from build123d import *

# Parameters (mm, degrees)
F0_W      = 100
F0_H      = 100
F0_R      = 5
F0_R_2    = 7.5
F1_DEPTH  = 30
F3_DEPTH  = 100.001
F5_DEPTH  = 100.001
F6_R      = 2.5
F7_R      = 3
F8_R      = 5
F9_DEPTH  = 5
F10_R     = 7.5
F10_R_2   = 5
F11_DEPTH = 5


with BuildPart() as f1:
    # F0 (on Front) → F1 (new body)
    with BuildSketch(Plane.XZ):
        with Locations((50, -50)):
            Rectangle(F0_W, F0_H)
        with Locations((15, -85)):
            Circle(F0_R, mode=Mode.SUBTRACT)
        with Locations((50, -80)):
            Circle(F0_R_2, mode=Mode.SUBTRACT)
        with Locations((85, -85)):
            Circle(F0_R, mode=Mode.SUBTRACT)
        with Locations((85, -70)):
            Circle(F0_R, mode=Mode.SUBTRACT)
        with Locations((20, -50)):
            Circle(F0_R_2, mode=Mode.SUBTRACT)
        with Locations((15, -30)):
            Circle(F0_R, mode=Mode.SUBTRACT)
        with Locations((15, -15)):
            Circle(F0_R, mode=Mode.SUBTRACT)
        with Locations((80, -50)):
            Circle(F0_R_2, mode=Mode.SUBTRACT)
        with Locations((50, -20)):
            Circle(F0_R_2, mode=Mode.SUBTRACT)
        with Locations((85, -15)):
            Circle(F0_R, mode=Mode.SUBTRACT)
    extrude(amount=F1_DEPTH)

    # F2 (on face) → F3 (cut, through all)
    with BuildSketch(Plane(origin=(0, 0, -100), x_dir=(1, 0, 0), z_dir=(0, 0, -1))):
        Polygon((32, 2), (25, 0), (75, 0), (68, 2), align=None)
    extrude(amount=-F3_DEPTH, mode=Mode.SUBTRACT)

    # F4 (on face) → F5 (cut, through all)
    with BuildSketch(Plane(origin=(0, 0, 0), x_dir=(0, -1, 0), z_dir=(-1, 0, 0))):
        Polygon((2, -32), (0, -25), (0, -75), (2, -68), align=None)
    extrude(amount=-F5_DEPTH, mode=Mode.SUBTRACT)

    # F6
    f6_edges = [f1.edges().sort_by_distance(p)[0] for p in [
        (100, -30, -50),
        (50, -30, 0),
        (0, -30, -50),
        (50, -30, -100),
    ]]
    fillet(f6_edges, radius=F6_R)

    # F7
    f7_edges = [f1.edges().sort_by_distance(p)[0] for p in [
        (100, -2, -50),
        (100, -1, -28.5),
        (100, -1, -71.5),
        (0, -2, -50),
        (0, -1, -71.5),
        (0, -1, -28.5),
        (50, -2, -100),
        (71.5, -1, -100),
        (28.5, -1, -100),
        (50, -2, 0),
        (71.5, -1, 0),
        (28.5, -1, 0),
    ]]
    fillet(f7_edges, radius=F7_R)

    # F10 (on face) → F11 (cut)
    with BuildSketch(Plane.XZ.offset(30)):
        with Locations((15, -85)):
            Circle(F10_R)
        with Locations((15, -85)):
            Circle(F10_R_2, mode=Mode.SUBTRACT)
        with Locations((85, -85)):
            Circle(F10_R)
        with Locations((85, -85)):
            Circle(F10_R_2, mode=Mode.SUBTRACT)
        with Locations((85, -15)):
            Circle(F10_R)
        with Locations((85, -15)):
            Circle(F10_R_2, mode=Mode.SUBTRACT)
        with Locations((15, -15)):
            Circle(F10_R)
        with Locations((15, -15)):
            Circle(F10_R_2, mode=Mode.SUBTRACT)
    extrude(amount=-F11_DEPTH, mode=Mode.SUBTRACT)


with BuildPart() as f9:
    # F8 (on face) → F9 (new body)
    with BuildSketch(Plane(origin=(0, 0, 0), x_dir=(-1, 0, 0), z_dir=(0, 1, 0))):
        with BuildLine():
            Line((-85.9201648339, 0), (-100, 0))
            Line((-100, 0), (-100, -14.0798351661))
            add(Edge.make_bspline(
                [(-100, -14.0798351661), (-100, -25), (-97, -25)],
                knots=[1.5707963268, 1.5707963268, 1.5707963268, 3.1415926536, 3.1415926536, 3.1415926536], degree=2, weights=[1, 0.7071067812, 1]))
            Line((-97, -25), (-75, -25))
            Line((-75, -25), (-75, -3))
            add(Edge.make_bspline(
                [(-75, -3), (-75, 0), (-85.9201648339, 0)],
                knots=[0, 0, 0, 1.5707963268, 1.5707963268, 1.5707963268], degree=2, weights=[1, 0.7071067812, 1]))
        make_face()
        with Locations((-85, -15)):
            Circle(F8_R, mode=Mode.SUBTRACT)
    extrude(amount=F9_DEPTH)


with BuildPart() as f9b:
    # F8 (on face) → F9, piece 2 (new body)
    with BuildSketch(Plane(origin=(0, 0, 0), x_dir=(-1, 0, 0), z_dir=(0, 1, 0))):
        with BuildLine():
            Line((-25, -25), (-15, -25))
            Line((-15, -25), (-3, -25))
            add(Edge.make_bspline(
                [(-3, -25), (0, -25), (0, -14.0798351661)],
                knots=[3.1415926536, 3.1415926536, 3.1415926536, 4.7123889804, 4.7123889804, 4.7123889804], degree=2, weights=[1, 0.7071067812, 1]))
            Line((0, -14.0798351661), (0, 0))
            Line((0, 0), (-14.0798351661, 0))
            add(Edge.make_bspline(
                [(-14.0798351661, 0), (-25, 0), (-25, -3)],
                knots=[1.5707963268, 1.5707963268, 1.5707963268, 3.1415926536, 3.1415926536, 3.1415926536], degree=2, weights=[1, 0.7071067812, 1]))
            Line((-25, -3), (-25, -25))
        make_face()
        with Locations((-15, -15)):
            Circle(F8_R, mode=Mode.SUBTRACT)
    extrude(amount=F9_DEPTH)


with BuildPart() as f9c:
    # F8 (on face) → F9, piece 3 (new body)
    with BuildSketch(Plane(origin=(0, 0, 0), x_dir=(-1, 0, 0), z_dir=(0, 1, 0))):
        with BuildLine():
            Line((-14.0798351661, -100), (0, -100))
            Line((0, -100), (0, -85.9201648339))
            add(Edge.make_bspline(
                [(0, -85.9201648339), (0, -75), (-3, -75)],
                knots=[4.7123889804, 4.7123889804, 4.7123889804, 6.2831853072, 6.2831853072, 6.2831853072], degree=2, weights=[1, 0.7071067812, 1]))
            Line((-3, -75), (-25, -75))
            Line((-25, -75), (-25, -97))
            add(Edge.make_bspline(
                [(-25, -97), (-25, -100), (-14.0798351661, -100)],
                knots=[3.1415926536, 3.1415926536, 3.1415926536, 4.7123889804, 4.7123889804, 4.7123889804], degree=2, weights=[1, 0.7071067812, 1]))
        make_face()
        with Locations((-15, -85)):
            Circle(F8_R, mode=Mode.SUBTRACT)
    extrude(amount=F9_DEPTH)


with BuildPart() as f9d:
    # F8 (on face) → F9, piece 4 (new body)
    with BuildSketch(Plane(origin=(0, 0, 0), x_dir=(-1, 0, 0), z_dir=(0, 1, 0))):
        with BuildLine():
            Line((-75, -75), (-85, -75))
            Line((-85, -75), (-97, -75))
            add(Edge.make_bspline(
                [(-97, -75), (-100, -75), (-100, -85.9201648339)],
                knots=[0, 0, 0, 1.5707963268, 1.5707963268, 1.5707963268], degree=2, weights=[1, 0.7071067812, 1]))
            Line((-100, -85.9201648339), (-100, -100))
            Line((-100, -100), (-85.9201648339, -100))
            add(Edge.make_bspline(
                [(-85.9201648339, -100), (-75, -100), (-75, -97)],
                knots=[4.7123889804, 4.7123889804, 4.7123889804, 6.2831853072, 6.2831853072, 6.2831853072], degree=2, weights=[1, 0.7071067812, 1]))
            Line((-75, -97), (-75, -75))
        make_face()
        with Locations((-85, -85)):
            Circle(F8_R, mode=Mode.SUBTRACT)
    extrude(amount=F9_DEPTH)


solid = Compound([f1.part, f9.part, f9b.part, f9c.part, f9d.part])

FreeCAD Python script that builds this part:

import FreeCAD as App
import Part
import Sketcher


def edges_at(feature, points):
    """Names of the edges that pass closest to the given points."""
    edges = feature.Shape.Edges
    near = lambda p: min(range(len(edges)), key=lambda i: edges[i].distToShape(Part.Vertex(*p))[0])
    return sorted({f"Edge{near(p) + 1}" for p in points})

doc = App.newDocument("Part")
body = doc.addObject("PartDesign::Body", "Body")

# Sketch on XZ plane
sketch1 = body.newObject("Sketcher::SketchObject", "Sketch")
sketch1.AttachmentSupport = (doc.getObject("XZ_Plane"), [""])
sketch1.MapMode = "FlatFace"
sketch1.addGeometry([
    Part.LineSegment(App.Vector(0, 0, 0), App.Vector(0, -100, 0)),  # 0
    Part.LineSegment(App.Vector(0, -100, 0), App.Vector(100, -100, 0)),  # 1
    Part.LineSegment(App.Vector(100, -100, 0), App.Vector(100, 0, 0)),  # 2
    Part.LineSegment(App.Vector(100, 0, 0), App.Vector(0, 0, 0)),  # 3
    Part.Circle(App.Vector(15, -85, 0), App.Vector(0, 0, 1), 5),  # 4
    Part.Circle(App.Vector(50, -80, 0), App.Vector(0, 0, 1), 7.5),  # 5
    Part.Circle(App.Vector(85, -85, 0), App.Vector(0, 0, 1), 5),  # 6
    Part.Circle(App.Vector(85, -70, 0), App.Vector(0, 0, 1), 5),  # 7
    Part.Circle(App.Vector(20, -50, 0), App.Vector(0, 0, 1), 7.5),  # 8
    Part.Circle(App.Vector(15, -30, 0), App.Vector(0, 0, 1), 5),  # 9
    Part.Circle(App.Vector(15, -15, 0), App.Vector(0, 0, 1), 5),  # 10
    Part.Circle(App.Vector(80, -50, 0), App.Vector(0, 0, 1), 7.5),  # 11
    Part.Circle(App.Vector(50, -20, 0), App.Vector(0, 0, 1), 7.5),  # 12
    Part.Circle(App.Vector(85, -15, 0), App.Vector(0, 0, 1), 5),  # 13
], False)
sketch1.addConstraint([
    Sketcher.Constraint("Coincident", 0, 2, 1, 1),
    Sketcher.Constraint("Coincident", 1, 2, 2, 1),
    Sketcher.Constraint("Coincident", 2, 2, 3, 1),
    Sketcher.Constraint("Coincident", 3, 2, 0, 1),
    Sketcher.Constraint("Vertical", 0),
    Sketcher.Constraint("Horizontal", 1),
    Sketcher.Constraint("Vertical", 2),
    Sketcher.Constraint("Horizontal", 3),
    Sketcher.Constraint("Coincident", 3, 2, -1, 1),
    Sketcher.Constraint("Equal", 4, 6),
    Sketcher.Constraint("Equal", 6, 7),
    Sketcher.Constraint("Equal", 5, 8),
    Sketcher.Constraint("Equal", 7, 9),
    Sketcher.Constraint("Equal", 9, 10),
    Sketcher.Constraint("Equal", 8, 11),
    Sketcher.Constraint("Equal", 11, 12),
    Sketcher.Constraint("Equal", 10, 13),
    Sketcher.Constraint("Horizontal", 4, 3, 6, 3),
    Sketcher.Constraint("Horizontal", 8, 3, 11, 3),
    Sketcher.Constraint("Horizontal", 10, 3, 13, 3),
    Sketcher.Constraint("Vertical", 6, 3, 7, 3),
    Sketcher.Constraint("Vertical", 4, 3, 9, 3),
    Sketcher.Constraint("Vertical", 9, 3, 10, 3),
    Sketcher.Constraint("Vertical", 5, 3, 12, 3),
    Sketcher.Constraint("Vertical", 7, 3, 13, 3),
    Sketcher.Constraint("Equal", 3, 0),
    Sketcher.Constraint("Diameter", 4, 10.0),
    Sketcher.Constraint("Diameter", 5, 15.0),
    Sketcher.Constraint("DistanceX", 1, 1, 1, 2, 100.0),
    Sketcher.Constraint("DistanceX", -1, 1, 4, 3, 15.0),
    Sketcher.Constraint("DistanceY", 4, 3, -1, 1, 85.0),
    Sketcher.Constraint("DistanceX", -1, 1, 5, 3, 50.0),
    Sketcher.Constraint("DistanceY", 5, 3, -1, 1, 80.0),
    Sketcher.Constraint("DistanceX", -1, 1, 6, 3, 85.0),
    Sketcher.Constraint("DistanceY", 7, 3, -1, 1, 70.0),
    Sketcher.Constraint("DistanceX", -1, 1, 8, 3, 20.0),
    Sketcher.Constraint("DistanceY", 8, 3, -1, 1, 50.0),
    Sketcher.Constraint("DistanceY", 9, 3, -1, 1, 30.0),
    Sketcher.Constraint("DistanceY", 10, 3, -1, 1, 15.0),
    Sketcher.Constraint("DistanceX", -1, 1, 11, 3, 80.0),
    Sketcher.Constraint("DistanceY", 12, 3, -1, 1, 20.0),
])
pad1 = body.newObject("PartDesign::Pad", "Pad")
pad1.Profile = sketch1
pad1.Length = 30

# Sketch on XY plane
sketch2 = body.newObject("Sketcher::SketchObject", "Sketch001")
sketch2.AttachmentSupport = (doc.getObject("XY_Plane"), [""])
sketch2.MapMode = "FlatFace"
sketch2.AttachmentOffset = App.Placement(App.Vector(0, 0, -100), App.Rotation())
sketch2.addGeometry([
    Part.LineSegment(App.Vector(32, -2, 0), App.Vector(25, 0, 0)),
    Part.LineSegment(App.Vector(25, 0, 0), App.Vector(75, 0, 0)),
    Part.LineSegment(App.Vector(75, 0, 0), App.Vector(68, -2, 0)),
    Part.LineSegment(App.Vector(68, -2, 0), App.Vector(32, -2, 0)),
], False)
sketch2.addConstraint([
    Sketcher.Constraint("Coincident", 0, 2, 1, 1),
    Sketcher.Constraint("Coincident", 1, 2, 2, 1),
    Sketcher.Constraint("Coincident", 2, 2, 3, 1),
    Sketcher.Constraint("Coincident", 3, 2, 0, 1),
    Sketcher.Constraint("Horizontal", 1),
    Sketcher.Constraint("Horizontal", 3),
    Sketcher.Constraint("PointOnObject", 0, 2, -1),
    Sketcher.Constraint("Equal", 0, 2),
    Sketcher.Constraint("DistanceX", 1, 1, 1, 2, 50.0),
    Sketcher.Constraint("DistanceX", 3, 2, 3, 1, 36.0),
    Sketcher.Constraint("DistanceX", -1, 1, 0, 2, 25.0),
    Sketcher.Constraint("DistanceY", 2, 2, -1, 1, 2.0),
])
pocket1 = body.newObject("PartDesign::Pocket", "Pocket")
pocket1.Profile = sketch2
pocket1.Type = "ThroughAll"
pocket1.Reversed = True

# Sketch on YZ plane
sketch3 = body.newObject("Sketcher::SketchObject", "Sketch002")
sketch3.AttachmentSupport = (doc.getObject("YZ_Plane"), [""])
sketch3.MapMode = "FlatFace"
sketch3.addGeometry([
    Part.LineSegment(App.Vector(-2, -32, 0), App.Vector(0, -25, 0)),
    Part.LineSegment(App.Vector(0, -25, 0), App.Vector(0, -75, 0)),
    Part.LineSegment(App.Vector(0, -75, 0), App.Vector(-2, -68, 0)),
    Part.LineSegment(App.Vector(-2, -68, 0), App.Vector(-2, -32, 0)),
], False)
sketch3.addConstraint([
    Sketcher.Constraint("Coincident", 0, 2, 1, 1),
    Sketcher.Constraint("Coincident", 1, 2, 2, 1),
    Sketcher.Constraint("Coincident", 2, 2, 3, 1),
    Sketcher.Constraint("Coincident", 3, 2, 0, 1),
    Sketcher.Constraint("Vertical", 1),
    Sketcher.Constraint("Vertical", 3),
    Sketcher.Constraint("PointOnObject", 0, 2, -2),
    Sketcher.Constraint("Equal", 0, 2),
    Sketcher.Constraint("DistanceY", 1, 2, 1, 1, 50.0),
    Sketcher.Constraint("DistanceY", 3, 1, 3, 2, 36.0),
    Sketcher.Constraint("DistanceY", 0, 2, -1, 1, 25.0),
    Sketcher.Constraint("DistanceX", 2, 2, -1, 1, 2.0),
])
pocket2 = body.newObject("PartDesign::Pocket", "Pocket001")
pocket2.Profile = sketch3
pocket2.Type = "ThroughAll"
pocket2.Reversed = True
doc.recompute()

fillet = body.newObject("PartDesign::Fillet", "Fillet")
fillet.Base = (pocket2, edges_at(pocket2, [
    (100, -30, -50),
    (50, -30, 0),
    (0, -30, -50),
    (50, -30, -100),
]))
fillet.Radius = 2.5
doc.recompute()

fillet2 = body.newObject("PartDesign::Fillet", "Fillet001")
fillet2.Base = (fillet, edges_at(fillet, [
    (100, -2, -50),
    (100, -1, -28.5),
    (100, -1, -71.5),
    (0, -2, -50),
    (0, -1, -71.5),
    (0, -1, -28.5),
    (50, -2, -100),
    (71.5, -1, -100),
    (28.5, -1, -100),
    (50, -2, 0),
    (71.5, -1, 0),
    (28.5, -1, 0),
]))
fillet2.Radius = 3

# Sketch on XZ plane
sketch4 = body.newObject("Sketcher::SketchObject", "Sketch003")
sketch4.AttachmentSupport = (doc.getObject("XZ_Plane"), [""])
sketch4.MapMode = "FlatFace"
sketch4.AttachmentOffset = App.Placement(App.Vector(0, 0, 30), App.Rotation())
sketch4.addGeometry([
    Part.Circle(App.Vector(15, -85, 0), App.Vector(0, 0, 1), 7.5),  # 0
    Part.Circle(App.Vector(15, -85, 0), App.Vector(0, 0, 1), 5),  # 1
    Part.Circle(App.Vector(85, -85, 0), App.Vector(0, 0, 1), 7.5),  # 2
    Part.Circle(App.Vector(85, -85, 0), App.Vector(0, 0, 1), 5),  # 3
    Part.Circle(App.Vector(85, -15, 0), App.Vector(0, 0, 1), 7.5),  # 4
    Part.Circle(App.Vector(85, -15, 0), App.Vector(0, 0, 1), 5),  # 5
    Part.Circle(App.Vector(15, -15, 0), App.Vector(0, 0, 1), 7.5),  # 6
    Part.Circle(App.Vector(15, -15, 0), App.Vector(0, 0, 1), 5),  # 7
], False)
sketch4.addConstraint([
    Sketcher.Constraint("Coincident", 1, 3, 0, 3),
    Sketcher.Constraint("Coincident", 3, 3, 2, 3),
    Sketcher.Constraint("Coincident", 5, 3, 4, 3),
    Sketcher.Constraint("Coincident", 7, 3, 6, 3),
    Sketcher.Constraint("Equal", 0, 2),
    Sketcher.Constraint("Equal", 1, 3),
    Sketcher.Constraint("Equal", 2, 4),
    Sketcher.Constraint("Equal", 3, 5),
    Sketcher.Constraint("Equal", 4, 6),
    Sketcher.Constraint("Equal", 5, 7),
    Sketcher.Constraint("Horizontal", 1, 3, 2, 3),
    Sketcher.Constraint("Horizontal", 5, 3, 6, 3),
    Sketcher.Constraint("Vertical", 3, 3, 4, 3),
    Sketcher.Constraint("Vertical", 1, 3, 6, 3),
    Sketcher.Constraint("Diameter", 0, 15.0),
    Sketcher.Constraint("Diameter", 1, 10.0),
    Sketcher.Constraint("DistanceX", -1, 1, 0, 3, 15.0),
    Sketcher.Constraint("DistanceY", 0, 3, -1, 1, 85.0),
    Sketcher.Constraint("DistanceX", -1, 1, 2, 3, 85.0),
    Sketcher.Constraint("DistanceY", 4, 3, -1, 1, 15.0),
])
pocket3 = body.newObject("PartDesign::Pocket", "Pocket002")
pocket3.Profile = sketch4
pocket3.Length = 5
body2 = doc.addObject("PartDesign::Body", "Body001")

# Sketch on XZ plane
sketch5 = body2.newObject("Sketcher::SketchObject", "Sketch004")
sketch5.AttachmentSupport = (doc.getObject("XZ_Plane001"), [""])
sketch5.MapMode = "FlatFace"
sketch5.addGeometry([
    Part.LineSegment(App.Vector(85.920165, 0, 0), App.Vector(100, 0, 0)),  # 0
    Part.LineSegment(App.Vector(100, 0, 0), App.Vector(100, -14.079835, 0)),  # 1
    Part.BSplineCurve([App.Vector(100, -14.079835, 0), App.Vector(100, -25, 0), App.Vector(97, -25, 0)], [3, 3], [1.570796327, 3.141592654], False, 2, [1, 0.707106781, 1], False),  # 2
    Part.LineSegment(App.Vector(97, -25, 0), App.Vector(75, -25, 0)),  # 3
    Part.LineSegment(App.Vector(75, -25, 0), App.Vector(75, -3, 0)),  # 4
    Part.BSplineCurve([App.Vector(75, -3, 0), App.Vector(75, 0, 0), App.Vector(85.920165, 0, 0)], [3, 3], [0, 1.570796327], False, 2, [1, 0.707106781, 1], False),  # 5
    Part.Circle(App.Vector(85, -15, 0), App.Vector(0, 0, 1), 5),  # 6
], False)
sketch5.addConstraint([
    Sketcher.Constraint("Block", 2),
    Sketcher.Constraint("Block", 5),
    Sketcher.Constraint("Coincident", 0, 2, 1, 1),
    Sketcher.Constraint("Coincident", 1, 2, 2, 1),
    Sketcher.Constraint("Coincident", 2, 2, 3, 1),
    Sketcher.Constraint("Coincident", 3, 2, 4, 1),
    Sketcher.Constraint("Coincident", 4, 2, 5, 1),
    Sketcher.Constraint("Coincident", 5, 2, 0, 1),
    Sketcher.Constraint("Horizontal", 0),
    Sketcher.Constraint("Vertical", 1),
    Sketcher.Constraint("Horizontal", 3),
    Sketcher.Constraint("Vertical", 4),
    Sketcher.Constraint("Diameter", 6, 10.0),
    Sketcher.Constraint("DistanceX", -1, 1, 6, 3, 85.0),
    Sketcher.Constraint("DistanceY", 6, 3, -1, 1, 15.0),
])
pad2 = body2.newObject("PartDesign::Pad", "Pad001")
pad2.Profile = sketch5
pad2.Length = 5
pad2.Reversed = True
body3 = doc.addObject("PartDesign::Body", "Body002")

# Sketch on XZ plane
sketch6 = body3.newObject("Sketcher::SketchObject", "Sketch005")
sketch6.AttachmentSupport = (doc.getObject("XZ_Plane002"), [""])
sketch6.MapMode = "FlatFace"
sketch6.addGeometry([
    Part.LineSegment(App.Vector(25, -25, 0), App.Vector(3, -25, 0)),  # 0
    Part.BSplineCurve([App.Vector(3, -25, 0), App.Vector(0, -25, 0), App.Vector(0, -14.079835, 0)], [3, 3], [3.141592654, 4.71238898], False, 2, [1, 0.707106781, 1], False),  # 1
    Part.LineSegment(App.Vector(0, -14.079835, 0), App.Vector(0, 0, 0)),  # 2
    Part.LineSegment(App.Vector(0, 0, 0), App.Vector(14.079835, 0, 0)),  # 3
    Part.BSplineCurve([App.Vector(14.079835, 0, 0), App.Vector(25, 0, 0), App.Vector(25, -3, 0)], [3, 3], [1.570796327, 3.141592654], False, 2, [1, 0.707106781, 1], False),  # 4
    Part.LineSegment(App.Vector(25, -3, 0), App.Vector(25, -25, 0)),  # 5
    Part.Circle(App.Vector(15, -15, 0), App.Vector(0, 0, 1), 5),  # 6
], False)
sketch6.addConstraint([
    Sketcher.Constraint("Block", 1),
    Sketcher.Constraint("Block", 4),
    Sketcher.Constraint("Coincident", 0, 2, 1, 1),
    Sketcher.Constraint("Coincident", 1, 2, 2, 1),
    Sketcher.Constraint("Coincident", 2, 2, 3, 1),
    Sketcher.Constraint("Coincident", 3, 2, 4, 1),
    Sketcher.Constraint("Coincident", 4, 2, 5, 1),
    Sketcher.Constraint("Coincident", 5, 2, 0, 1),
    Sketcher.Constraint("Horizontal", 0),
    Sketcher.Constraint("Vertical", 2),
    Sketcher.Constraint("Horizontal", 3),
    Sketcher.Constraint("Vertical", 5),
    Sketcher.Constraint("Diameter", 6, 10.0),
    Sketcher.Constraint("DistanceX", -1, 1, 6, 3, 15.0),
    Sketcher.Constraint("DistanceY", 6, 3, -1, 1, 15.0),
])
pad3 = body3.newObject("PartDesign::Pad", "Pad002")
pad3.Profile = sketch6
pad3.Length = 5
pad3.Reversed = True
body4 = doc.addObject("PartDesign::Body", "Body003")

# Sketch on XZ plane
sketch7 = body4.newObject("Sketcher::SketchObject", "Sketch006")
sketch7.AttachmentSupport = (doc.getObject("XZ_Plane003"), [""])
sketch7.MapMode = "FlatFace"
sketch7.addGeometry([
    Part.LineSegment(App.Vector(14.079835, -100, 0), App.Vector(0, -100, 0)),  # 0
    Part.LineSegment(App.Vector(0, -100, 0), App.Vector(0, -85.920165, 0)),  # 1
    Part.BSplineCurve([App.Vector(0, -85.920165, 0), App.Vector(0, -75, 0), App.Vector(3, -75, 0)], [3, 3], [4.71238898, 6.283185307], False, 2, [1, 0.707106781, 1], False),  # 2
    Part.LineSegment(App.Vector(3, -75, 0), App.Vector(25, -75, 0)),  # 3
    Part.LineSegment(App.Vector(25, -75, 0), App.Vector(25, -97, 0)),  # 4
    Part.BSplineCurve([App.Vector(25, -97, 0), App.Vector(25, -100, 0), App.Vector(14.079835, -100, 0)], [3, 3], [3.141592654, 4.71238898], False, 2, [1, 0.707106781, 1], False),  # 5
    Part.Circle(App.Vector(15, -85, 0), App.Vector(0, 0, 1), 5),  # 6
], False)
sketch7.addConstraint([
    Sketcher.Constraint("Block", 2),
    Sketcher.Constraint("Block", 5),
    Sketcher.Constraint("Coincident", 0, 2, 1, 1),
    Sketcher.Constraint("Coincident", 1, 2, 2, 1),
    Sketcher.Constraint("Coincident", 2, 2, 3, 1),
    Sketcher.Constraint("Coincident", 3, 2, 4, 1),
    Sketcher.Constraint("Coincident", 4, 2, 5, 1),
    Sketcher.Constraint("Coincident", 5, 2, 0, 1),
    Sketcher.Constraint("Horizontal", 0),
    Sketcher.Constraint("Vertical", 1),
    Sketcher.Constraint("Horizontal", 3),
    Sketcher.Constraint("Vertical", 4),
    Sketcher.Constraint("Diameter", 6, 10.0),
    Sketcher.Constraint("DistanceX", -1, 1, 6, 3, 15.0),
    Sketcher.Constraint("DistanceY", 6, 3, -1, 1, 85.0),
])
pad4 = body4.newObject("PartDesign::Pad", "Pad003")
pad4.Profile = sketch7
pad4.Length = 5
pad4.Reversed = True
body5 = doc.addObject("PartDesign::Body", "Body004")

# Sketch on XZ plane
sketch8 = body5.newObject("Sketcher::SketchObject", "Sketch007")
sketch8.AttachmentSupport = (doc.getObject("XZ_Plane004"), [""])
sketch8.MapMode = "FlatFace"
sketch8.addGeometry([
    Part.LineSegment(App.Vector(75, -75, 0), App.Vector(97, -75, 0)),  # 0
    Part.BSplineCurve([App.Vector(97, -75, 0), App.Vector(100, -75, 0), App.Vector(100, -85.920165, 0)], [3, 3], [0, 1.570796327], False, 2, [1, 0.707106781, 1], False),  # 1
    Part.LineSegment(App.Vector(100, -85.920165, 0), App.Vector(100, -100, 0)),  # 2
    Part.LineSegment(App.Vector(100, -100, 0), App.Vector(85.920165, -100, 0)),  # 3
    Part.BSplineCurve([App.Vector(85.920165, -100, 0), App.Vector(75, -100, 0), App.Vector(75, -97, 0)], [3, 3], [4.71238898, 6.283185307], False, 2, [1, 0.707106781, 1], False),  # 4
    Part.LineSegment(App.Vector(75, -97, 0), App.Vector(75, -75, 0)),  # 5
    Part.Circle(App.Vector(85, -85, 0), App.Vector(0, 0, 1), 5),  # 6
], False)
sketch8.addConstraint([
    Sketcher.Constraint("Block", 1),
    Sketcher.Constraint("Block", 4),
    Sketcher.Constraint("Coincident", 0, 2, 1, 1),
    Sketcher.Constraint("Coincident", 1, 2, 2, 1),
    Sketcher.Constraint("Coincident", 2, 2, 3, 1),
    Sketcher.Constraint("Coincident", 3, 2, 4, 1),
    Sketcher.Constraint("Coincident", 4, 2, 5, 1),
    Sketcher.Constraint("Coincident", 5, 2, 0, 1),
    Sketcher.Constraint("Horizontal", 0),
    Sketcher.Constraint("Vertical", 2),
    Sketcher.Constraint("Horizontal", 3),
    Sketcher.Constraint("Vertical", 5),
    Sketcher.Constraint("Diameter", 6, 10.0),
    Sketcher.Constraint("DistanceX", -1, 1, 6, 3, 85.0),
    Sketcher.Constraint("DistanceY", 6, 3, -1, 1, 85.0),
])
pad5 = body5.newObject("PartDesign::Pad", "Pad004")
pad5.Profile = sketch8
pad5.Length = 5
pad5.Reversed = True

doc.recompute()
